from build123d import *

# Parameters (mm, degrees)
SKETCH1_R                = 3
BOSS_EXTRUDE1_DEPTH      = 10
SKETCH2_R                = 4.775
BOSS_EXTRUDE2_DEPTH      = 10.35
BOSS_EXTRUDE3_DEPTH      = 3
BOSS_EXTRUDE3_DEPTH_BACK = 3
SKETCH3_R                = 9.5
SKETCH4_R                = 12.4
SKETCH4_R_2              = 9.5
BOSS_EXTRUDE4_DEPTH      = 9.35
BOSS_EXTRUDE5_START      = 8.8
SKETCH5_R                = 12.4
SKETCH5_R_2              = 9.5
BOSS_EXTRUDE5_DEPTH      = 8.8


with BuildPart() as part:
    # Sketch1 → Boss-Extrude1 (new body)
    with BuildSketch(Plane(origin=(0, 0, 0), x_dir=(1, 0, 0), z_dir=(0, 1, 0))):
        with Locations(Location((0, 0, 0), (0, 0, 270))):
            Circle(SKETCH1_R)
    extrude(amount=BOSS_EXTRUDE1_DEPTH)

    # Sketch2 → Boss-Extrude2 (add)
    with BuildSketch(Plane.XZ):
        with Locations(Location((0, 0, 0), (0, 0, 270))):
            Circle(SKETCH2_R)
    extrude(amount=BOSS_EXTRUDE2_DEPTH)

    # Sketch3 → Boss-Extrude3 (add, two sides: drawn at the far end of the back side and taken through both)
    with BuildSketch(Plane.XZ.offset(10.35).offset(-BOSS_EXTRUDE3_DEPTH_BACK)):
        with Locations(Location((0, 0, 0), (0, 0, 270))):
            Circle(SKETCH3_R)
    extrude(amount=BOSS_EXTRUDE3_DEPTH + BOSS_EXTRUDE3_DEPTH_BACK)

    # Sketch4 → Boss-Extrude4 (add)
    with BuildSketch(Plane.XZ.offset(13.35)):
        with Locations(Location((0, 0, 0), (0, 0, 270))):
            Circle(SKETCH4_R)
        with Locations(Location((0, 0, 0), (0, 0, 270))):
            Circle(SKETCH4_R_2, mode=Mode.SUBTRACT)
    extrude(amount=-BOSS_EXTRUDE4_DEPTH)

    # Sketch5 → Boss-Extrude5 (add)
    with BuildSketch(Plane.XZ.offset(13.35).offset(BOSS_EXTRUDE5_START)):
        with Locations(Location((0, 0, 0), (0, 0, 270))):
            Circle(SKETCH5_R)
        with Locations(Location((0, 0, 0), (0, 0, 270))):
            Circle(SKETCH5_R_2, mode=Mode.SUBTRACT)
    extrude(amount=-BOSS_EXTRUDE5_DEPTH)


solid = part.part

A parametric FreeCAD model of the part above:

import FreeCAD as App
import Part
import Sketcher
Q = App.Units.Quantity

doc = App.newDocument("Part")
body = doc.addObject("PartDesign::Body", "Body")

# Sketch on XZ plane
sketch1 = body.newObject("Sketcher::SketchObject", "Sketch")
sketch1.AttachmentSupport = (doc.getObject("XZ_Plane"), [""])
sketch1.MapMode = "FlatFace"
sketch1.addGeometry(Part.Circle(App.Vector(0, 0, 0), App.Vector(0, 0, 1), 3), False)
sketch1.addConstraint([
    Sketcher.Constraint("Coincident", 0, 3, -1, 1),
    Sketcher.Constraint("Diameter", 0, Q("6 mm")),
])
pad1 = body.newObject("PartDesign::Pad", "Pad")
pad1.Profile = sketch1
pad1.Length = 10
pad1.Reversed = True

# Sketch on XZ plane
sketch2 = body.newObject("Sketcher::SketchObject", "Sketch001")
sketch2.AttachmentSupport = (doc.getObject("XZ_Plane"), [""])
sketch2.MapMode = "FlatFace"
sketch2.addGeometry(Part.Circle(App.Vector(0, 0, 0), App.Vector(0, 0, 1), 4.775), False)
sketch2.addConstraint([
    Sketcher.Constraint("Coincident", 0, 3, -1, 1),
    Sketcher.Constraint("Diameter", 0, Q("9.55 mm")),
])
pad2 = body.newObject("PartDesign::Pad", "Pad001")
pad2.Profile = sketch2
pad2.Length = 10.35

# Sketch on XZ plane
sketch3 = body.newObject("Sketcher::SketchObject", "Sketch002")
sketch3.AttachmentSupport = (doc.getObject("XZ_Plane"), [""])
sketch3.MapMode = "FlatFace"
sketch3.AttachmentOffset = App.Placement(App.Vector(0, 0, 10.35), App.Rotation())
sketch3.addGeometry(Part.Circle(App.Vector(0, 0, 0), App.Vector(0, 0, 1), 9.5), False)
sketch3.addConstraint([
    Sketcher.Constraint("Coincident", 0, 3, -1, 1),
    Sketcher.Constraint("Diameter", 0, Q("19 mm")),
])
pad3 = body.newObject("PartDesign::Pad", "Pad002")
pad3.Profile = sketch3
pad3.Type = "TwoLengths"
pad3.Length = 3
pad3.Length2 = 3

# Sketch on XZ plane
sketch4 = body.newObject("Sketcher::SketchObject", "Sketch003")
sketch4.AttachmentSupport = (doc.getObject("XZ_Plane"), [""])
sketch4.MapMode = "FlatFace"
sketch4.AttachmentOffset = App.Placement(App.Vector(0, 0, 13.35), App.Rotation())
sketch4.addGeometry([
    Part.Circle(App.Vector(0, 0, 0), App.Vector(0, 0, 1), 12.4),
    Part.Circle(App.Vector(0, 0, 0), App.Vector(0, 0, 1), 9.5),
], False)
sketch4.addConstraint([
    Sketcher.Constraint("Coincident", 0, 3, -1, 1),
    Sketcher.Constraint("Coincident", 1, 3, -1, 1),
    Sketcher.Constraint("Diameter", 1, Q("19 mm")),
    Sketcher.Constraint("Diameter", 0, Q("24.8 mm")),
])
pad4 = body.newObject("PartDesign::Pad", "Pad003")
pad4.Profile = sketch4
pad4.Length = 9.35
pad4.Reversed = True

# Sketch on XZ plane
sketch5 = body.newObject("Sketcher::SketchObject", "Sketch004")
sketch5.AttachmentSupport = (doc.getObject("XZ_Plane"), [""])
sketch5.MapMode = "FlatFace"
sketch5.AttachmentOffset = App.Placement(App.Vector(0, 0, 22.15), App.Rotation())
sketch5.addGeometry([
    Part.Circle(App.Vector(0, 0, 0), App.Vector(0, 0, 1), 12.4),
    Part.Circle(App.Vector(0, 0, 0), App.Vector(0, 0, 1), 9.5),
], False)
sketch5.addConstraint([
    Sketcher.Constraint("Coincident", 0, 3, -1, 1),
    Sketcher.Constraint("Coincident", 1, 3, -1, 1),
    Sketcher.Constraint("Diameter", 1, Q("19 mm")),
    Sketcher.Constraint("Diameter", 0, Q("24.8 mm")),
])
pad5 = body.newObject("PartDesign::Pad", "Pad004")
pad5.Profile = sketch5
pad5.Length = 8.8
pad5.Reversed = True

doc.recompute()
